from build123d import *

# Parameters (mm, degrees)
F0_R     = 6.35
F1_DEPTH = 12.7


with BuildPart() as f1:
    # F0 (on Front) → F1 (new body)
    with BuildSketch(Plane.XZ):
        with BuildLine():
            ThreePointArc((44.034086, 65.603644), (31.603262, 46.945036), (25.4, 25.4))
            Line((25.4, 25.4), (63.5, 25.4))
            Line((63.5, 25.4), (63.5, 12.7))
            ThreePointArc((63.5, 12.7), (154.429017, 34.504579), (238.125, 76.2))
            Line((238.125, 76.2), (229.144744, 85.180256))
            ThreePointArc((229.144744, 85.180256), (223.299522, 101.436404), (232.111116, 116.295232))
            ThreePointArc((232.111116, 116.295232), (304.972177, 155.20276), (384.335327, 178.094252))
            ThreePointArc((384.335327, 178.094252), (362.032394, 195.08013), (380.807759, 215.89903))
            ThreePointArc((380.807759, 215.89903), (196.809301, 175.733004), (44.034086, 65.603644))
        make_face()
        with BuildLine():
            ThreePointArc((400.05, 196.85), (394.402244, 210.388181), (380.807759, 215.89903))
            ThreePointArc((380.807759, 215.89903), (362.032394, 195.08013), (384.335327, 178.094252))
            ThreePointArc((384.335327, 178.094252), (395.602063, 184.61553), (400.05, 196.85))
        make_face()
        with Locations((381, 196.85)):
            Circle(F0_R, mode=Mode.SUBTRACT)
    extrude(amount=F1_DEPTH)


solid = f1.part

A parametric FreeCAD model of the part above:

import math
import FreeCAD as App
import Part
import Sketcher
Q = App.Units.Quantity

doc = App.newDocument("Part")
body = doc.addObject("PartDesign::Body", "Body")

# Sketch on XZ plane
sketch1 = body.newObject("Sketcher::SketchObject", "Sketch")
sketch1.AttachmentSupport = (doc.getObject("XZ_Plane"), [""])
sketch1.MapMode = "FlatFace"
sketch1.addGeometry([
    Part.ArcOfCircle(Part.Circle(App.Vector(98, 16, 0), App.Vector(0, 0, 1), 73), math.radians(138), math.radians(173)),  # 0
    Part.LineSegment(App.Vector(25, 25, 0), App.Vector(64, 25, 0)),  # 1
    Part.LineSegment(App.Vector(64, 25, 0), App.Vector(64, 13, 0)),  # 2
    Part.ArcOfCircle(Part.Circle(App.Vector(13, 423, 0), App.Vector(0, 0, 1), 413), math.radians(-83), math.radians(-57)),  # 3
    Part.LineSegment(App.Vector(238, 76, 0), App.Vector(229, 85, 0)),  # 4
    Part.ArcOfCircle(Part.Circle(App.Vector(243, 100, 0), App.Vector(0, 0, 1), 20), math.radians(124), math.radians(225)),  # 5
    Part.ArcOfCircle(Part.Circle(App.Vector(453, -211, 0), App.Vector(0, 0, 1), 395), math.radians(100), math.radians(124)),  # 6
    Part.ArcOfCircle(Part.Circle(App.Vector(381, 197, 0), App.Vector(0, 0, 1), 19), math.radians(-80), math.radians(0)),  # 7
    Part.ArcOfCircle(Part.Circle(App.Vector(381, 197, 0), App.Vector(0, 0, 1), 19), math.radians(0), math.radians(91)),  # 8
    Part.ArcOfCircle(Part.Circle(App.Vector(385, -247, 0), App.Vector(0, 0, 1), 463), math.radians(91), math.radians(138)),  # 9
    Part.Circle(App.Vector(381, 197, 0), App.Vector(0, 0, 1), 6),  # 10
], False)
sketch1.addConstraint([
    Sketcher.Constraint("Coincident", 0, 2, 1, 1),
    Sketcher.Constraint("Coincident", 1, 2, 2, 1),
    Sketcher.Constraint("Coincident", 2, 2, 3, 1),
    Sketcher.Constraint("Coincident", 3, 2, 4, 1),
    Sketcher.Constraint("Tangent", 4, 2, 5, 2),
    Sketcher.Constraint("Tangent", 5, 1, 6, 2),
    Sketcher.Constraint("Tangent", 6, 1, 7, 1),
    Sketcher.Constraint("Tangent", 7, 2, 8, 1),
    Sketcher.Constraint("Tangent", 8, 2, 9, 1),
    Sketcher.Constraint("Tangent", 9, 2, 0, 1),
    Sketcher.Constraint("Horizontal", 1),
    Sketcher.Constraint("Vertical", 2),
    Sketcher.Constraint("Coincident", 10, 3, 7, 3),
    Sketcher.Constraint("Equal", 7, 8),
    Sketcher.Constraint("Horizontal", 10, 3, 7, 2),
    Sketcher.Constraint("Diameter", 10, Q("0.5 in")),
    Sketcher.Constraint("Radius", 7, Q("0.75 in")),
    Sketcher.Constraint("DistanceX", 1, 1, 1, 2, Q("1.5 in")),
    Sketcher.Constraint("DistanceY", 2, 2, 2, 1, Q("0.5 in")),
    Sketcher.Constraint("DistanceX", -1, 1, 7, 3, Q("15 in")),
    Sketcher.Constraint("DistanceX", -1, 1, 0, 2, Q("1 in")),
    Sketcher.Constraint("DistanceY", -1, 1, 0, 2, Q("1 in")),
    Sketcher.Constraint("DistanceY", -1, 1, 3, 2, Q("3 in")),
    Sketcher.Constraint("Angle", 4, Q("135 deg")),
    Sketcher.Constraint("Radius", 5, Q("0.798 in")),
    Sketcher.Constraint("Distance", 4, Q("0.5 in")),
    Sketcher.Constraint("DistanceY", -1, 1, 7, 3, Q("7.75 in")),
    Sketcher.Constraint("Radius", 3, 413.11011),
    Sketcher.Constraint("Radius", 6, 394.695348),
    Sketcher.Constraint("Radius", 0, 73.233058),
    Sketcher.Constraint("Radius", 9, 462.951667),
    Sketcher.Constraint("DistanceX", -1, 1, 6, 3, 453.439699),
    Sketcher.Constraint("DistanceY", 0, 3, 5, 1, 100.146099),
])
pad1 = body.newObject("PartDesign::Pad", "Pad")
pad1.Profile = sketch1
pad1.Length = Q("0.5 in")

doc.recompute()
